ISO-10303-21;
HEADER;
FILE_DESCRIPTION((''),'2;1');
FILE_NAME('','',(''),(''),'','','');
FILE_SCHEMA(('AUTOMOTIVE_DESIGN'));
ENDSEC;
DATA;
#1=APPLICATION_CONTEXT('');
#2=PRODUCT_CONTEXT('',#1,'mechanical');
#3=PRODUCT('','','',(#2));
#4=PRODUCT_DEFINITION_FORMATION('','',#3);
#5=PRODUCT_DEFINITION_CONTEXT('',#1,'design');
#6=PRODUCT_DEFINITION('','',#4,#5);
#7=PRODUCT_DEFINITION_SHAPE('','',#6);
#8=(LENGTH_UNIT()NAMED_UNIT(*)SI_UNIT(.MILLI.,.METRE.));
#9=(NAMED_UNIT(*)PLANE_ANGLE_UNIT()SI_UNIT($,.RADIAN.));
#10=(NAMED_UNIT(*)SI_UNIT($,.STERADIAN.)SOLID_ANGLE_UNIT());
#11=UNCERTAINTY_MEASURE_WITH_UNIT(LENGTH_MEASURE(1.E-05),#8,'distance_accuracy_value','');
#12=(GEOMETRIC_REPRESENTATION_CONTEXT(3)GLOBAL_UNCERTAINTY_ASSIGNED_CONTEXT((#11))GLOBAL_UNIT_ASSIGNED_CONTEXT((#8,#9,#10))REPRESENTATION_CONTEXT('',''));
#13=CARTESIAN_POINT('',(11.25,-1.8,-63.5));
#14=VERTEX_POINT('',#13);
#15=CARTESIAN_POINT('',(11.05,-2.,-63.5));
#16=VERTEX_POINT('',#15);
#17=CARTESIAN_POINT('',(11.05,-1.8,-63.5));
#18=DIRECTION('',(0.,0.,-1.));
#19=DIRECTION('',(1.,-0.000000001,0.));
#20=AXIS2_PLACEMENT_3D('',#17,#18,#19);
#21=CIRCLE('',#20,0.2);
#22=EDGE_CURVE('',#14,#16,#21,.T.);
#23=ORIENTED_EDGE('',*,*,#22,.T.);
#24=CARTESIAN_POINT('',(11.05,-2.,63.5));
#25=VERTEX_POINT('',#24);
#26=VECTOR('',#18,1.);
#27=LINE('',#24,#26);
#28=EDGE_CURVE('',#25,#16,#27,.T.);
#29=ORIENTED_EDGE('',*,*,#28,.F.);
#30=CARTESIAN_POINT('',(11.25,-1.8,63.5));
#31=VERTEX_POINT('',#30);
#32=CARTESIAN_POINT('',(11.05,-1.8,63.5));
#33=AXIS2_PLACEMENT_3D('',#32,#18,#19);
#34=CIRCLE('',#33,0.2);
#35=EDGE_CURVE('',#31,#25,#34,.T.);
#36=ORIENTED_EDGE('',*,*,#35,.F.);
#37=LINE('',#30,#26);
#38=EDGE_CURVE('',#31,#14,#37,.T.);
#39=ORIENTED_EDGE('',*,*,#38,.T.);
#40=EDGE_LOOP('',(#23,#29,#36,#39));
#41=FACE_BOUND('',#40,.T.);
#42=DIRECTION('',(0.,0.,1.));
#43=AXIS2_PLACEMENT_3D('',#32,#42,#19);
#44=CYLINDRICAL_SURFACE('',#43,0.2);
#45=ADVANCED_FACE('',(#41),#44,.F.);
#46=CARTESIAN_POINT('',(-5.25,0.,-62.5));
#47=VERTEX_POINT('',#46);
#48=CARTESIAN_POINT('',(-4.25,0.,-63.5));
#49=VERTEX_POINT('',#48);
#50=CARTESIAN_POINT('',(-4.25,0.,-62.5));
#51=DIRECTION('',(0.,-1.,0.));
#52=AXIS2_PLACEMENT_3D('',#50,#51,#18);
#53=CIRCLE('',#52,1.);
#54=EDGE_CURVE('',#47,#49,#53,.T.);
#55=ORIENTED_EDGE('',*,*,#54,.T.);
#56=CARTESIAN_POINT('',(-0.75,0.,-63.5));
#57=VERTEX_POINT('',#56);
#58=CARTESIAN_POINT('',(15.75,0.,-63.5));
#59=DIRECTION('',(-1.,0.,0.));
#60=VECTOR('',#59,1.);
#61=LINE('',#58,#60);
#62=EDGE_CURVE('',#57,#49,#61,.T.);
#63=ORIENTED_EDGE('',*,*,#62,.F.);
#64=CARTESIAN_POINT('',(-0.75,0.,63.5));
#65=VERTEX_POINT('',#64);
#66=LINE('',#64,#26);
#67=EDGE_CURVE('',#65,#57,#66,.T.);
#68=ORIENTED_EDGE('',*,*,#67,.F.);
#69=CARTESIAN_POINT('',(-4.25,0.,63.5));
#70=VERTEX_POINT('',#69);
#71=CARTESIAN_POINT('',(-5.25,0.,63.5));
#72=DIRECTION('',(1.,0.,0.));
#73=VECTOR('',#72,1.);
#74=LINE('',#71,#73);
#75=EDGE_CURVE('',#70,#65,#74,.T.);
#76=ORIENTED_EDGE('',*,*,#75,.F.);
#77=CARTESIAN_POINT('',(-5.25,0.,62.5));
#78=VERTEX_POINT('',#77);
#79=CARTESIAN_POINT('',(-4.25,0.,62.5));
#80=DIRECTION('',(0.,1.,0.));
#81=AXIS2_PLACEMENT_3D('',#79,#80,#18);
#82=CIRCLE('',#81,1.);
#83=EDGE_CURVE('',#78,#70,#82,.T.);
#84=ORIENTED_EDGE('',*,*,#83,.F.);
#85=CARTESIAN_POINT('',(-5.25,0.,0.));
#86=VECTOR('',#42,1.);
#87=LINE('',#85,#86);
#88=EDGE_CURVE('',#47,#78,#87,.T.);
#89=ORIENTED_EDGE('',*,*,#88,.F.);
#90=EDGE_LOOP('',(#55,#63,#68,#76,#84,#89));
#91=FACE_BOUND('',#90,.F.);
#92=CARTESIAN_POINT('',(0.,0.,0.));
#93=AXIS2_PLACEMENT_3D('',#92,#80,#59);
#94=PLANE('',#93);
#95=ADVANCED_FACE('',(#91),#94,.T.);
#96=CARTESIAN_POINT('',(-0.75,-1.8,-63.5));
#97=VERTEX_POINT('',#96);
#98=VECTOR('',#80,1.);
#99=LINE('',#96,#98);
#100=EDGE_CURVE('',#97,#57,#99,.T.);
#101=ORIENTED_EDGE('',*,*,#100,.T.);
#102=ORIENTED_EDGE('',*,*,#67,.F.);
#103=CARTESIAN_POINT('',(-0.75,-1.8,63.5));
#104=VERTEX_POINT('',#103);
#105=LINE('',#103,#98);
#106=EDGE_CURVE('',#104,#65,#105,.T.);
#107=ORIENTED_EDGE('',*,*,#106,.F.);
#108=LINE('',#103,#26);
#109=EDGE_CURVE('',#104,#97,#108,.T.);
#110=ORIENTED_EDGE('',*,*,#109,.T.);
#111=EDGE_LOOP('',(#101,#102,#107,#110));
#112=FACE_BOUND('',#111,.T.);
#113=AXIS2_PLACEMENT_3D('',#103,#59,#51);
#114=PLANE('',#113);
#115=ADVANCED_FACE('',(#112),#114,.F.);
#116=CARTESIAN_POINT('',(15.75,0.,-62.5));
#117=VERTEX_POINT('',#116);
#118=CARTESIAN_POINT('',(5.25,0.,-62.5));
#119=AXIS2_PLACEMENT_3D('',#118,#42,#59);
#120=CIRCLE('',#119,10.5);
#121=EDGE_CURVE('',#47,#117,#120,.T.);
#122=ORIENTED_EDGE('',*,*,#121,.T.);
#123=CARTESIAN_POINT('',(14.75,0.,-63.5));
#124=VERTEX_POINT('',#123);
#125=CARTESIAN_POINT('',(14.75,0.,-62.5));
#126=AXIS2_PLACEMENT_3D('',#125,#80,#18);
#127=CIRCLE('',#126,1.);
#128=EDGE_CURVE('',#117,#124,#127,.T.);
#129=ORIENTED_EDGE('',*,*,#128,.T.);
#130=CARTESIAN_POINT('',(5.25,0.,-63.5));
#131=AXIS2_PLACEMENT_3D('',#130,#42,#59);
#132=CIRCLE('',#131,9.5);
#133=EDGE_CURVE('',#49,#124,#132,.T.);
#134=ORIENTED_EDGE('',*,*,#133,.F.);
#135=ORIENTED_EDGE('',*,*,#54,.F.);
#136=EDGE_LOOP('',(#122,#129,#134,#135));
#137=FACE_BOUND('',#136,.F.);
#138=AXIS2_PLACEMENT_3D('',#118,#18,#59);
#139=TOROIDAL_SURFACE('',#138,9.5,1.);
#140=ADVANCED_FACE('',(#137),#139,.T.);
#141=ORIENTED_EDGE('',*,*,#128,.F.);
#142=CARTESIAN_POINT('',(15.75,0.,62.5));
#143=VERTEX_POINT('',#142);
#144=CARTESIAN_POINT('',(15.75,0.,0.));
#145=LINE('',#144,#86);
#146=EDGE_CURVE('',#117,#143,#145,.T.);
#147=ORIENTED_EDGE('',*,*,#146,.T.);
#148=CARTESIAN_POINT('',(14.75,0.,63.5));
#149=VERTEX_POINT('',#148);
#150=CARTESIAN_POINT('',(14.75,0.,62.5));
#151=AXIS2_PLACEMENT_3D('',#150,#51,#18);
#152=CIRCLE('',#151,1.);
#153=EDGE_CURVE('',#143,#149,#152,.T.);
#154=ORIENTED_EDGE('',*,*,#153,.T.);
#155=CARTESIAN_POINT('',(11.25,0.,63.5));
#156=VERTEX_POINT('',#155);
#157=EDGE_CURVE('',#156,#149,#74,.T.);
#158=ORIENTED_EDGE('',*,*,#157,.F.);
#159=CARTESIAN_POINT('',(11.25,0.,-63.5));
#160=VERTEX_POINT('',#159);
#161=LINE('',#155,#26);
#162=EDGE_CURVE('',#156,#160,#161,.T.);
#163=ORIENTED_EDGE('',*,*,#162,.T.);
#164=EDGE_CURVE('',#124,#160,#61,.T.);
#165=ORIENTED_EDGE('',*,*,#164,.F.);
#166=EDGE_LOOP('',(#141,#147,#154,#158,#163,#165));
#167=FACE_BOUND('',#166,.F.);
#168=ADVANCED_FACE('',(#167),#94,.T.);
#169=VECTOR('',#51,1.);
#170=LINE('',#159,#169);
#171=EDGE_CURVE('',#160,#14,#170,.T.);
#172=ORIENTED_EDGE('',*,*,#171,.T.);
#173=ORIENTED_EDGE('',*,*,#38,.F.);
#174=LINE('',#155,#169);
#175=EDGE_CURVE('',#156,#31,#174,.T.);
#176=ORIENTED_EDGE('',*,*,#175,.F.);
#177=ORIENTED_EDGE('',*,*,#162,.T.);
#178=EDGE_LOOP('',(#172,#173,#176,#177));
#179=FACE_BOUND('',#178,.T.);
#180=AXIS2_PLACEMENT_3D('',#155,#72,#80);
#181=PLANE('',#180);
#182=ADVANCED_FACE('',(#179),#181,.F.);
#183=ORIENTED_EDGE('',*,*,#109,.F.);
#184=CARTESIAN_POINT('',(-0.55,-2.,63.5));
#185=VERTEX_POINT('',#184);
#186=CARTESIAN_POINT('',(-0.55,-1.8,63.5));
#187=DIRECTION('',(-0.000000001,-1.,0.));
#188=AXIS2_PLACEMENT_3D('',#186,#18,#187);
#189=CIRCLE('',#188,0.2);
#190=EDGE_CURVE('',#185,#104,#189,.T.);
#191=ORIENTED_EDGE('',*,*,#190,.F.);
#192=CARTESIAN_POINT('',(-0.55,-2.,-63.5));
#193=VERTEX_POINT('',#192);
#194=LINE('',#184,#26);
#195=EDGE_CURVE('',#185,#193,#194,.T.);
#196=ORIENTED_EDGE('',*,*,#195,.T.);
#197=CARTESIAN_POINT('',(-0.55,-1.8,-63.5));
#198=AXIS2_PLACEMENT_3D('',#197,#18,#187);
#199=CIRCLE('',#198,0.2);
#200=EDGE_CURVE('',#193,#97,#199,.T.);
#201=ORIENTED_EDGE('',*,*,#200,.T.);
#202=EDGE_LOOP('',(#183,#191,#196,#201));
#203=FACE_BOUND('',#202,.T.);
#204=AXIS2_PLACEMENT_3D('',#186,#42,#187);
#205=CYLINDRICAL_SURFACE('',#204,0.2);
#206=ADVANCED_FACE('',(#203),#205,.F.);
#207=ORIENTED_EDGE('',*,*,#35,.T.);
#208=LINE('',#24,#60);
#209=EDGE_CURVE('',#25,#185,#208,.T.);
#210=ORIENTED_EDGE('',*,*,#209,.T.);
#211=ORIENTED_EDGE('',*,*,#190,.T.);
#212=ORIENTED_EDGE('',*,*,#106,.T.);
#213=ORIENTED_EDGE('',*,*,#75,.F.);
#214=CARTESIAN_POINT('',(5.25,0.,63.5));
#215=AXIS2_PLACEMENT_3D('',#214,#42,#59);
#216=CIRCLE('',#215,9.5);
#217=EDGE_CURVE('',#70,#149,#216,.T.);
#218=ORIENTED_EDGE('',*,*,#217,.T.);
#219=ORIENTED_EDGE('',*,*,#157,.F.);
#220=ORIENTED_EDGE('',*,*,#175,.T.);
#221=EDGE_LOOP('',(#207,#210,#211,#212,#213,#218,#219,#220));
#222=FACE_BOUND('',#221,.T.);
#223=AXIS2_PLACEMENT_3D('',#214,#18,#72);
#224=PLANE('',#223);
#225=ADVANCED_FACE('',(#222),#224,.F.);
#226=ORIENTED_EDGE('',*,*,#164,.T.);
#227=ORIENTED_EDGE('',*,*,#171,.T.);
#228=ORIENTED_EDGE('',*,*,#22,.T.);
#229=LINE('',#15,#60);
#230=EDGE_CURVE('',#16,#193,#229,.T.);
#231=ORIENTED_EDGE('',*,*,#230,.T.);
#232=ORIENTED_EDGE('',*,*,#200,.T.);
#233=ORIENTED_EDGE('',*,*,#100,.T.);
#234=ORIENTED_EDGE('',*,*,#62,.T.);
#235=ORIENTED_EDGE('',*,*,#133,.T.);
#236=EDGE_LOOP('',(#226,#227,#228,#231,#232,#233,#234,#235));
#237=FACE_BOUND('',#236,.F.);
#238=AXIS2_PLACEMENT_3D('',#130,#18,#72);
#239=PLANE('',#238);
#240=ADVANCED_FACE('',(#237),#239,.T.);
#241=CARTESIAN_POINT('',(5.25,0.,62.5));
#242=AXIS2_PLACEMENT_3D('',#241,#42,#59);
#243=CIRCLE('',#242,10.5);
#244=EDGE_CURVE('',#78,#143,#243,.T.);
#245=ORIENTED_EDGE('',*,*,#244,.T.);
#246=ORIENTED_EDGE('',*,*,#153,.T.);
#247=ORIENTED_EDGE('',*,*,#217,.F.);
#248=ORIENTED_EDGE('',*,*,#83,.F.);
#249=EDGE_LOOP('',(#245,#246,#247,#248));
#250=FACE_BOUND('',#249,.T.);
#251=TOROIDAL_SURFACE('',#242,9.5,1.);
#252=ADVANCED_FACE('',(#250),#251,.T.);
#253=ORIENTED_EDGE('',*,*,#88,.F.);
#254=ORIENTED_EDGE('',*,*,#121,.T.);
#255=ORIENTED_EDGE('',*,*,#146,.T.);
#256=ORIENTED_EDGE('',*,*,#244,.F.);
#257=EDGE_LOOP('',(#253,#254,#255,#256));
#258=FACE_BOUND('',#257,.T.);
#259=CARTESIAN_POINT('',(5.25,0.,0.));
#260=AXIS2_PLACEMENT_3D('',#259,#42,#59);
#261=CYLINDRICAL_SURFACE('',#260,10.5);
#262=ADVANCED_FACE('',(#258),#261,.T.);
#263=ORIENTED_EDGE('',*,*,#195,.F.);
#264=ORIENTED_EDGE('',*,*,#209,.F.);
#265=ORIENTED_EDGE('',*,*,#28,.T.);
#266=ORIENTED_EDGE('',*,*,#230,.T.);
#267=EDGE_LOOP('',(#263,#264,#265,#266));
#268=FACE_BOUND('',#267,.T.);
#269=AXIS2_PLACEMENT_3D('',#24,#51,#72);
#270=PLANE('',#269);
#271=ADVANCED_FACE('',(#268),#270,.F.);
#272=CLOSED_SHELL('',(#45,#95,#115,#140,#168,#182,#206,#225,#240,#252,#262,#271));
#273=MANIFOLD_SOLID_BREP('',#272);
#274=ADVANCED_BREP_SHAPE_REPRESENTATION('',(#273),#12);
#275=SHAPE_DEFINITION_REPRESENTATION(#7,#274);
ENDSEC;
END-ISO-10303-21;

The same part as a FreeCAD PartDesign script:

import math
import FreeCAD as App
import Part
import Sketcher
Q = App.Units.Quantity


def edges_at(feature, points):
    """Names of the edges that pass closest to the given points."""
    edges = feature.Shape.Edges
    near = lambda p: min(range(len(edges)), key=lambda i: edges[i].distToShape(Part.Vertex(*p))[0])
    return sorted({f"Edge{near(p) + 1}" for p in points})

doc = App.newDocument("Part")
body = doc.addObject("PartDesign::Body", "Body")

# Sketch on XZ plane
sketch1 = body.newObject("Sketcher::SketchObject", "Sketch")
sketch1.AttachmentSupport = (doc.getObject("XZ_Plane"), [""])
sketch1.MapMode = "FlatFace"
sketch1.addGeometry([
    Part.LineSegment(App.Vector(-5, 64, 0), App.Vector(-5, -64, 0)),
    Part.LineSegment(App.Vector(-5, -64, 0), App.Vector(5, -64, 0)),
    Part.LineSegment(App.Vector(5, -64, 0), App.Vector(5, 64, 0)),
    Part.LineSegment(App.Vector(5, 64, 0), App.Vector(-5, 64, 0)),
], False)
sketch1.addGeometry(Part.LineSegment(App.Vector(5, 64, 0), App.Vector(5, -64, 0)), True)  # axis
sketch1.addConstraint([
    Sketcher.Constraint("Coincident", 0, 2, 1, 1),
    Sketcher.Constraint("Coincident", 1, 2, 2, 1),
    Sketcher.Constraint("Coincident", 2, 2, 3, 1),
    Sketcher.Constraint("Coincident", 3, 2, 0, 1),
    Sketcher.Constraint("Vertical", 0),
    Sketcher.Constraint("Horizontal", 1),
    Sketcher.Constraint("Vertical", 2),
    Sketcher.Constraint("Horizontal", 3),
    Sketcher.Constraint("Vertical", 4),
    Sketcher.Constraint("Coincident", 4, 1, 2, 2),
    Sketcher.Constraint("Symmetric", 0, 2, 2, 2, -1, 1),
    Sketcher.Constraint("Horizontal", 0, 2, 4, 2),
    Sketcher.Constraint("DistanceY", 0, 2, 0, 1, Q("127 mm")),
    Sketcher.Constraint("DistanceX", 1, 1, 1, 2, Q("10.5 mm")),
])
revolution = body.newObject("PartDesign::Revolution", "Revolution")
revolution.Profile = sketch1
revolution.ReferenceAxis = (sketch1, ["Axis0"])
revolution.Angle = 180

# Sketch on XY plane
sketch2 = body.newObject("Sketcher::SketchObject", "Sketch001")
sketch2.AttachmentSupport = (doc.getObject("XY_Plane"), [""])
sketch2.MapMode = "FlatFace"
sketch2.AttachmentOffset = App.Placement(App.Vector(0, 0, 63.5), App.Rotation())
sketch2.addGeometry([
    Part.LineSegment(App.Vector(-0.75, 0, 0), App.Vector(11.25, 0, 0)),  # 0
    Part.LineSegment(App.Vector(11.25, 0, 0), App.Vector(11.25, 1.8, 0)),  # 1
    Part.ArcOfCircle(Part.Circle(App.Vector(11.05, 1.8, 0), App.Vector(0, 0, 1), 0.2), math.radians(0), math.radians(90)),  # 2
    Part.LineSegment(App.Vector(11.05, 2, 0), App.Vector(-0.55, 2, 0)),  # 3
    Part.ArcOfCircle(Part.Circle(App.Vector(-0.55, 1.8, 0), App.Vector(0, 0, 1), 0.2), math.radians(90), math.radians(180)),  # 4
    Part.LineSegment(App.Vector(-0.75, 1.8, 0), App.Vector(-0.75, 0, 0)),  # 5
], False)
sketch2.addConstraint([
    Sketcher.Constraint("Coincident", 0, 2, 1, 1),
    Sketcher.Constraint("Tangent", 1, 2, 2, 1),
    Sketcher.Constraint("Tangent", 2, 2, 3, 1),
    Sketcher.Constraint("Tangent", 3, 2, 4, 1),
    Sketcher.Constraint("Tangent", 4, 2, 5, 1),
    Sketcher.Constraint("Coincident", 5, 2, 0, 1),
    Sketcher.Constraint("Horizontal", 0),
    Sketcher.Constraint("Vertical", 1),
    Sketcher.Constraint("Horizontal", 3),
    Sketcher.Constraint("Vertical", 5),
    Sketcher.Constraint("Equal", 2, 4),
    Sketcher.Constraint("PointOnObject", 0, 2, -1),
    Sketcher.Constraint("Radius", 2, Q("0.2 mm")),
    Sketcher.Constraint("DistanceX", 0, 1, 0, 2, Q("12 mm")),
    Sketcher.Constraint("DistanceY", 1, 1, 1, 2, Q("1.8 mm")),
    Sketcher.Constraint("DistanceX", -1, 1, 2, 3, Q("11.05 mm")),
])
pocket1 = body.newObject("PartDesign::Pocket", "Pocket")
pocket1.Profile = sketch2
pocket1.Length = 127
doc.recompute()

fillet = body.newObject("PartDesign::Fillet", "Fillet")
fillet.Base = (pocket1, edges_at(pocket1, [(5.25, 10.5, 63.5)]))
fillet.Radius = 1
doc.recompute()

fillet2 = body.newObject("PartDesign::Fillet", "Fillet001")
fillet2.Base = (fillet, edges_at(fillet, [(5.25, 10.5, -63.5)]))
fillet2.Radius = 1
body2 = doc.addObject("PartDesign::Body", "Body001")
doc.recompute()

mirroring = doc.addObject("Part::Mirroring", "Mirroring")
mirroring.Source = body
mirroring.Base = App.Vector(0, 0, 0)
mirroring.Normal = App.Vector(0, -1, 0)
body2.BaseFeature = mirroring
doc.recompute()
body.Visibility = False
mirroring.Visibility = False

doc.recompute()
